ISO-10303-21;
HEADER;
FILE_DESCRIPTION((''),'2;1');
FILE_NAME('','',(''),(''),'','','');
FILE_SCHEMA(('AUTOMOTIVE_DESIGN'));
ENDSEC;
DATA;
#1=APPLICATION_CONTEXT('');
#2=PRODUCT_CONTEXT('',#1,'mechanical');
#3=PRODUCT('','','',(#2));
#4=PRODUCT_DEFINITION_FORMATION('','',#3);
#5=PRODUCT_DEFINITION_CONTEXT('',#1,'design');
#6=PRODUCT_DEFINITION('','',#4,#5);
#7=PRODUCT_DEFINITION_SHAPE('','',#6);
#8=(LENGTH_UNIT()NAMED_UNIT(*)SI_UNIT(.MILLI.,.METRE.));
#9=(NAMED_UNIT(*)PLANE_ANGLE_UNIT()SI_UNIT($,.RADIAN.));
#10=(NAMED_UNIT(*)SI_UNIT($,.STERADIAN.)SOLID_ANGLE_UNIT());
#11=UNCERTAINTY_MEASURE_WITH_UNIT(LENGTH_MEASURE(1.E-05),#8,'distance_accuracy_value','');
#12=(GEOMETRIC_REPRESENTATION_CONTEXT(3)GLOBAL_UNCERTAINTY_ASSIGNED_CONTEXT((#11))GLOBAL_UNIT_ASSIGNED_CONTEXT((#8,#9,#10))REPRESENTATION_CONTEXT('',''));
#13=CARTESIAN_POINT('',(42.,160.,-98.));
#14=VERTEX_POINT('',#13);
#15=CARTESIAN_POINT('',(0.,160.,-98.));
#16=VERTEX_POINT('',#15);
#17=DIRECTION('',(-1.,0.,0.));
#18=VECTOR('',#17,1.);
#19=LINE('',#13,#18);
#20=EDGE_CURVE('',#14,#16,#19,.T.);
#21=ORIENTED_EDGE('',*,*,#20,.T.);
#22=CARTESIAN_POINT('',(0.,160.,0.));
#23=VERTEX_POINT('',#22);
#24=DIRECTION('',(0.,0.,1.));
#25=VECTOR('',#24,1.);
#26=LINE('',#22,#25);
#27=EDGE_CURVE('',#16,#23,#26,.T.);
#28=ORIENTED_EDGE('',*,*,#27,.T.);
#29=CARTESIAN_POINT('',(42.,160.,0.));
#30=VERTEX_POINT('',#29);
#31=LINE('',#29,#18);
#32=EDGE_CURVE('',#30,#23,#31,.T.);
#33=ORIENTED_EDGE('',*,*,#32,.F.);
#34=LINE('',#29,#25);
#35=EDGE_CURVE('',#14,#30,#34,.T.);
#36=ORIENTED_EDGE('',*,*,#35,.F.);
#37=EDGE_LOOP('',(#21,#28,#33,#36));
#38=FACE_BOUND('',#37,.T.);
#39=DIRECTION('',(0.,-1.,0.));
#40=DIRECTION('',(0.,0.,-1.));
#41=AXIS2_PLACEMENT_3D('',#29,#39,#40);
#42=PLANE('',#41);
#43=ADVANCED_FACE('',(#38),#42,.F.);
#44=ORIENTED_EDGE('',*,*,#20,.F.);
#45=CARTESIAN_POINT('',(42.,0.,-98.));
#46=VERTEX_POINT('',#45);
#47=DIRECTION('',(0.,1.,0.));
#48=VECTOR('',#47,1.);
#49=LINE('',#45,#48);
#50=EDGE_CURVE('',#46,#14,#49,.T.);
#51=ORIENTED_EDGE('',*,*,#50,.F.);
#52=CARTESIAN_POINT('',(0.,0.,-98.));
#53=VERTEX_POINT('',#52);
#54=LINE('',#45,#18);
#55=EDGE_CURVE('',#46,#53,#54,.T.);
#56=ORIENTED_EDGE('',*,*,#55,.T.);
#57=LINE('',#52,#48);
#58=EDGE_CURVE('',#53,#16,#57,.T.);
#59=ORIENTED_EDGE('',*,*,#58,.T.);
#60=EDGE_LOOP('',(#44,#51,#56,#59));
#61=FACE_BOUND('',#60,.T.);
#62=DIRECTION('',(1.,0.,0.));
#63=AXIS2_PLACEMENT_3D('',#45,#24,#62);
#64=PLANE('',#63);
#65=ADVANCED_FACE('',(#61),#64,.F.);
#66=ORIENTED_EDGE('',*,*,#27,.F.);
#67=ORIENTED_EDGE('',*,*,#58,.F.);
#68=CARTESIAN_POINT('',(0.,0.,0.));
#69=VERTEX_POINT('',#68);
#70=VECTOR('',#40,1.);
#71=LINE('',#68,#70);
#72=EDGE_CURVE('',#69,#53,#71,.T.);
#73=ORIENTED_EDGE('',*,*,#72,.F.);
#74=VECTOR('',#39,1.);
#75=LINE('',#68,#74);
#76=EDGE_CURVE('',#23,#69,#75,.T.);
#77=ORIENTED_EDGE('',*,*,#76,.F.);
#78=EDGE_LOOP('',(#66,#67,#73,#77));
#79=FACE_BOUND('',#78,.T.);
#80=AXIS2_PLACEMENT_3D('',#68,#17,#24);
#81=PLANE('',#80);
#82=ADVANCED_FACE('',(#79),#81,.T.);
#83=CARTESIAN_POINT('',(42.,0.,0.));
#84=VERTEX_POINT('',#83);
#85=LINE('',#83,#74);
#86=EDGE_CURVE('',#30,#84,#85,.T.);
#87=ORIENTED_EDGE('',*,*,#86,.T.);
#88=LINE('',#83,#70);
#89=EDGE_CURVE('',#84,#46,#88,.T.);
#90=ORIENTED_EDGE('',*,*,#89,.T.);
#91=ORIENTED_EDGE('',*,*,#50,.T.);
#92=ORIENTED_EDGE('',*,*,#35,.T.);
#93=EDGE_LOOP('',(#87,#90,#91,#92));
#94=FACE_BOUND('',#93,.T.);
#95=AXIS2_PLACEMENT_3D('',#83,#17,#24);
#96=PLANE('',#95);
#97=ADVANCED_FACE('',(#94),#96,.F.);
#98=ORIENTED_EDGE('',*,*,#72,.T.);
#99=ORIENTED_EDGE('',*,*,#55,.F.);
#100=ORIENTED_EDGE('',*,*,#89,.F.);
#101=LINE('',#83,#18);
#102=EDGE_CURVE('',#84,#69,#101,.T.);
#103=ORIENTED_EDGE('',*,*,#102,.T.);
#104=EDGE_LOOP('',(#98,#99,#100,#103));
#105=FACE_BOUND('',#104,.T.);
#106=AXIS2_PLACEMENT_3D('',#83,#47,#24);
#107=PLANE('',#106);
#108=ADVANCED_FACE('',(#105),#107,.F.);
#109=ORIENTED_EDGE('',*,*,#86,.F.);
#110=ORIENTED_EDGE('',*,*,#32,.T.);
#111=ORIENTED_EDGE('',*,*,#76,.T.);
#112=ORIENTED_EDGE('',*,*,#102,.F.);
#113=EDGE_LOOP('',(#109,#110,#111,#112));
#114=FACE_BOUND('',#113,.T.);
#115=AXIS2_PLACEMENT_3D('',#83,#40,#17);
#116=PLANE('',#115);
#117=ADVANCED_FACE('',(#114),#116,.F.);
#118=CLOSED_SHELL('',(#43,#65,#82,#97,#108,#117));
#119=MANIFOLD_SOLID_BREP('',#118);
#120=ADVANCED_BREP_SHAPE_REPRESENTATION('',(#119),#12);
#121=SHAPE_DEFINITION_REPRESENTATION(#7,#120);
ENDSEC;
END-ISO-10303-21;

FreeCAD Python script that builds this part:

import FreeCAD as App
import Part
import Sketcher

V = App.Vector

doc = App.newDocument("Part")
params = doc.addObject("Spreadsheet::Sheet", "Params")
for row, (alias, value) in enumerate([
    ("sketch1_width", "160 mm"),
    ("sketch1_height", "98 mm"),
    ("pad1_length", "42 mm"),
], start=1):
    params.set(f"A{row}", alias)
    params.set(f"B{row}", "=" + value)
    params.setAlias(f"B{row}", alias)

body = doc.addObject("PartDesign::Body", "Body")

# Sketch on YZ plane
sketch1 = body.newObject("Sketcher::SketchObject", "Sketch")
sketch1.AttachmentSupport = (doc.getObject("YZ_Plane"), [""])
sketch1.MapMode = "FlatFace"
sketch1.addGeometry([
    Part.LineSegment(V(160, 0, 0), V(0, 0, 0)),
    Part.LineSegment(V(0, 0, 0), V(0, -98, 0)),
    Part.LineSegment(V(0, -98, 0), V(160, -98, 0)),
    Part.LineSegment(V(160, -98, 0), V(160, 0, 0)),
], False)
sketch1.addConstraint([
    Sketcher.Constraint("Coincident", 0, 2, 1, 1),
    Sketcher.Constraint("Coincident", 1, 2, 2, 1),
    Sketcher.Constraint("Coincident", 2, 2, 3, 1),
    Sketcher.Constraint("Coincident", 3, 2, 0, 1),
    Sketcher.Constraint("Horizontal", 0),
    Sketcher.Constraint("Vertical", 1),
    Sketcher.Constraint("Horizontal", 2),
    Sketcher.Constraint("Vertical", 3),
    Sketcher.Constraint("Coincident", 0, 2, -1, 1),
    Sketcher.Constraint("DistanceX", 0, 2, 0, 1, 160.0),
    Sketcher.Constraint("DistanceY", 1, 2, 1, 1, 98.0),
])
sketch1.setExpression("Constraints[9]", "Params.sketch1_width")
sketch1.setExpression("Constraints[10]", "Params.sketch1_height")
pad1 = body.newObject("PartDesign::Pad", "Pad")
pad1.Profile = sketch1
pad1.setExpression("Length", "Params.pad1_length")

doc.recompute()
